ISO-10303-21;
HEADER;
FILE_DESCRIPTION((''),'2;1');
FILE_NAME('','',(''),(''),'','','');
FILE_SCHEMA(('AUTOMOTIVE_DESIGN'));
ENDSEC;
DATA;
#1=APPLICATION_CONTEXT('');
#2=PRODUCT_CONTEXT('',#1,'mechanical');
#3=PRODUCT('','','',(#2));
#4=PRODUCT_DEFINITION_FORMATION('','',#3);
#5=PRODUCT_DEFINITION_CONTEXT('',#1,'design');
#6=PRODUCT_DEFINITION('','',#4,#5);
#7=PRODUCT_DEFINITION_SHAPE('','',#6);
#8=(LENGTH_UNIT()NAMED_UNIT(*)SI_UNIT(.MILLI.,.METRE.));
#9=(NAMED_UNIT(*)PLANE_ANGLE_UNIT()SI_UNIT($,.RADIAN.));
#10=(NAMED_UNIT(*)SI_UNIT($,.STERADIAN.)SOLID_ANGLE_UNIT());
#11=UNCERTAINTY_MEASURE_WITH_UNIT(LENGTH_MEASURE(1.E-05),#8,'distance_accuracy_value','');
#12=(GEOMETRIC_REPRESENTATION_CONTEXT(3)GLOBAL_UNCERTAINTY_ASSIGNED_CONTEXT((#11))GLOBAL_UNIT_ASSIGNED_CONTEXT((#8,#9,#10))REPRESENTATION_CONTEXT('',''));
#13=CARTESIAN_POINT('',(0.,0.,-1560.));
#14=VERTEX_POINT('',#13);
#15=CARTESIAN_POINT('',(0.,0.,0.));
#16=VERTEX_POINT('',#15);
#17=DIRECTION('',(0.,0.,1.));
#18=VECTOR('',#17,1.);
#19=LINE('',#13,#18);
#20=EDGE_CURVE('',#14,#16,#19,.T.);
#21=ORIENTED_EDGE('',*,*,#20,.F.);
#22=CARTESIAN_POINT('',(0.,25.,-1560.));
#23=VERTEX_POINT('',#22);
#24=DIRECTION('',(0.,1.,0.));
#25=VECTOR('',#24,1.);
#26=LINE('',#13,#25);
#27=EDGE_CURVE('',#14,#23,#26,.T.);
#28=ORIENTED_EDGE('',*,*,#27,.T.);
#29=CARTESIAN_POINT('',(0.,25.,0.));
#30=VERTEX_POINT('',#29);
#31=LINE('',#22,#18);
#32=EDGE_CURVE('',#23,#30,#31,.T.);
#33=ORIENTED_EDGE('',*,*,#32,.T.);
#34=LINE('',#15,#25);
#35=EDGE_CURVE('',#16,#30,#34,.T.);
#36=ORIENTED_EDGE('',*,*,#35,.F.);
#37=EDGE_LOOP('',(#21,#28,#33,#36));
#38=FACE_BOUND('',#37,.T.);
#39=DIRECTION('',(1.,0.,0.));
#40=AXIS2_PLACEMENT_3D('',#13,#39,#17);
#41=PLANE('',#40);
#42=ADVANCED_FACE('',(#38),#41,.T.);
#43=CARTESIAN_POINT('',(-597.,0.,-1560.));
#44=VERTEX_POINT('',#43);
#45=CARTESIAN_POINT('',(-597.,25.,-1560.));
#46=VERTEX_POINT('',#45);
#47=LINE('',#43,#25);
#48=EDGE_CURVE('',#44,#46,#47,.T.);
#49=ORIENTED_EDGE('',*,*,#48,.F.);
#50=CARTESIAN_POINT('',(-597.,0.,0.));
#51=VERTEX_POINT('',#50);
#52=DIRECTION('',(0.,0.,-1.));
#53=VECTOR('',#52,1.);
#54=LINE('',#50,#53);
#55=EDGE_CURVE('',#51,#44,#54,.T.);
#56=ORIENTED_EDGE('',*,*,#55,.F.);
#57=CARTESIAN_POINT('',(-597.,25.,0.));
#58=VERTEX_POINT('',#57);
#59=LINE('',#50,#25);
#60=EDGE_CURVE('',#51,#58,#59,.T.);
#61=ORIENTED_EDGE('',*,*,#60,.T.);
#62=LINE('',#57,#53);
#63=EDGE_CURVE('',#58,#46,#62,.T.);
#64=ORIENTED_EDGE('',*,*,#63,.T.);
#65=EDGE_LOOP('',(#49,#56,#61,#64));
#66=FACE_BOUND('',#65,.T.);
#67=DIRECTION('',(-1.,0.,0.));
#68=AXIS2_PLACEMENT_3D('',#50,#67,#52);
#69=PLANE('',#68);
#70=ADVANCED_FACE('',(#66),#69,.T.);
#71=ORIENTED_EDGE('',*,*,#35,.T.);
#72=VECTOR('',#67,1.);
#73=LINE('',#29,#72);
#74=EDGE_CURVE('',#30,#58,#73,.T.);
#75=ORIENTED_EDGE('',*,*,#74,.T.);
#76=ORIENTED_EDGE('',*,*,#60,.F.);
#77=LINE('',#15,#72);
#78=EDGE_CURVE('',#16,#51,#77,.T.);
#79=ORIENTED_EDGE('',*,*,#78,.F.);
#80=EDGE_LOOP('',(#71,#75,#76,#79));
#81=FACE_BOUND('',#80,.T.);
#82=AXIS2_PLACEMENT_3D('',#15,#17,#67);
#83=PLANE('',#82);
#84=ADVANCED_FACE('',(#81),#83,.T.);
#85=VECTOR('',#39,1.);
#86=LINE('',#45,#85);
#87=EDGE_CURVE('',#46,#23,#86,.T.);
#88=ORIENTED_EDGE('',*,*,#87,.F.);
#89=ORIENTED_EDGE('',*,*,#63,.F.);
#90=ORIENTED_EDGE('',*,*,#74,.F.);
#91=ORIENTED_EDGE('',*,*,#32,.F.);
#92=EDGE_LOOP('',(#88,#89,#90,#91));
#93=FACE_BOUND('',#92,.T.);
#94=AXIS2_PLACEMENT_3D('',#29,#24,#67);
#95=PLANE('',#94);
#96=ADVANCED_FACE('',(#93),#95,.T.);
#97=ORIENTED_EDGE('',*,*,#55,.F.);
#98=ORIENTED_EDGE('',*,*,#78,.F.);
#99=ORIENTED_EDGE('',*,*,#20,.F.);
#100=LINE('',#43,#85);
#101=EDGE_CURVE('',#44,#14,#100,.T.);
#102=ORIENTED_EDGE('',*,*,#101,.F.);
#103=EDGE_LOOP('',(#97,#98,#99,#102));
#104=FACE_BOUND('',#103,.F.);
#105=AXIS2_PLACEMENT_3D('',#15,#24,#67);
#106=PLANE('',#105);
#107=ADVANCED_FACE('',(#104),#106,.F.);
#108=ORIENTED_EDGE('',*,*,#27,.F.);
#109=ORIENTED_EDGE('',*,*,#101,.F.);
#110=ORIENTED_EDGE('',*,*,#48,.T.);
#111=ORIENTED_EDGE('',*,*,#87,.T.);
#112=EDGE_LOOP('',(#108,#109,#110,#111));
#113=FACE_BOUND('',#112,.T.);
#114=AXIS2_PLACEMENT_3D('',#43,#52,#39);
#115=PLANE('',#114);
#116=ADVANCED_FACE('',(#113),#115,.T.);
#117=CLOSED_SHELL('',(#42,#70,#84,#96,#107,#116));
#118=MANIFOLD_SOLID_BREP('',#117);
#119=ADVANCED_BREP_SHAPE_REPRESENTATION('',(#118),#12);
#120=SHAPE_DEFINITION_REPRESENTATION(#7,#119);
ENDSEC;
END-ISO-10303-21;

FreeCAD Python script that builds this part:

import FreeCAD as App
import Part
import Sketcher
from FreeCAD import Vector

doc = App.newDocument("Part")
params = doc.addObject("Spreadsheet::Sheet", "Params")
for row, (alias, value) in enumerate([
    ("sketch1_width", "597 mm"),
    ("sketch1_height", "1560 mm"),
    ("pad1_length", "25 mm"),
], start=1):
    params.set(f"A{row}", alias)
    params.set(f"B{row}", "=" + value)
    params.setAlias(f"B{row}", alias)

body = doc.addObject("PartDesign::Body", "Body")

# Sketch on XZ plane
sketch1 = body.newObject("Sketcher::SketchObject", "Sketch")
sketch1.AttachmentSupport = (doc.getObject("XZ_Plane"), [""])
sketch1.MapMode = "FlatFace"
sketch1.addGeometry([
    Part.LineSegment(Vector(-597, 0, 0), Vector(0, 0, 0)),
    Part.LineSegment(Vector(0, 0, 0), Vector(0, -1560, 0)),
    Part.LineSegment(Vector(0, -1560, 0), Vector(-597, -1560, 0)),
    Part.LineSegment(Vector(-597, -1560, 0), Vector(-597, 0, 0)),
], False)
sketch1.addConstraint([
    Sketcher.Constraint("Coincident", 0, 2, 1, 1),
    Sketcher.Constraint("Coincident", 1, 2, 2, 1),
    Sketcher.Constraint("Coincident", 2, 2, 3, 1),
    Sketcher.Constraint("Coincident", 3, 2, 0, 1),
    Sketcher.Constraint("Horizontal", 0),
    Sketcher.Constraint("Vertical", 1),
    Sketcher.Constraint("Horizontal", 2),
    Sketcher.Constraint("Vertical", 3),
    Sketcher.Constraint("Coincident", 0, 2, -1, 1),
    Sketcher.Constraint("DistanceX", 0, 1, 0, 2, 597.0),
    Sketcher.Constraint("DistanceY", 1, 2, 1, 1, 1560.0),
])
sketch1.setExpression("Constraints[9]", "Params.sketch1_width")
sketch1.setExpression("Constraints[10]", "Params.sketch1_height")
pad1 = body.newObject("PartDesign::Pad", "Pad")
pad1.Profile = sketch1
pad1.setExpression("Length", "Params.pad1_length")
pad1.Reversed = True

doc.recompute()
